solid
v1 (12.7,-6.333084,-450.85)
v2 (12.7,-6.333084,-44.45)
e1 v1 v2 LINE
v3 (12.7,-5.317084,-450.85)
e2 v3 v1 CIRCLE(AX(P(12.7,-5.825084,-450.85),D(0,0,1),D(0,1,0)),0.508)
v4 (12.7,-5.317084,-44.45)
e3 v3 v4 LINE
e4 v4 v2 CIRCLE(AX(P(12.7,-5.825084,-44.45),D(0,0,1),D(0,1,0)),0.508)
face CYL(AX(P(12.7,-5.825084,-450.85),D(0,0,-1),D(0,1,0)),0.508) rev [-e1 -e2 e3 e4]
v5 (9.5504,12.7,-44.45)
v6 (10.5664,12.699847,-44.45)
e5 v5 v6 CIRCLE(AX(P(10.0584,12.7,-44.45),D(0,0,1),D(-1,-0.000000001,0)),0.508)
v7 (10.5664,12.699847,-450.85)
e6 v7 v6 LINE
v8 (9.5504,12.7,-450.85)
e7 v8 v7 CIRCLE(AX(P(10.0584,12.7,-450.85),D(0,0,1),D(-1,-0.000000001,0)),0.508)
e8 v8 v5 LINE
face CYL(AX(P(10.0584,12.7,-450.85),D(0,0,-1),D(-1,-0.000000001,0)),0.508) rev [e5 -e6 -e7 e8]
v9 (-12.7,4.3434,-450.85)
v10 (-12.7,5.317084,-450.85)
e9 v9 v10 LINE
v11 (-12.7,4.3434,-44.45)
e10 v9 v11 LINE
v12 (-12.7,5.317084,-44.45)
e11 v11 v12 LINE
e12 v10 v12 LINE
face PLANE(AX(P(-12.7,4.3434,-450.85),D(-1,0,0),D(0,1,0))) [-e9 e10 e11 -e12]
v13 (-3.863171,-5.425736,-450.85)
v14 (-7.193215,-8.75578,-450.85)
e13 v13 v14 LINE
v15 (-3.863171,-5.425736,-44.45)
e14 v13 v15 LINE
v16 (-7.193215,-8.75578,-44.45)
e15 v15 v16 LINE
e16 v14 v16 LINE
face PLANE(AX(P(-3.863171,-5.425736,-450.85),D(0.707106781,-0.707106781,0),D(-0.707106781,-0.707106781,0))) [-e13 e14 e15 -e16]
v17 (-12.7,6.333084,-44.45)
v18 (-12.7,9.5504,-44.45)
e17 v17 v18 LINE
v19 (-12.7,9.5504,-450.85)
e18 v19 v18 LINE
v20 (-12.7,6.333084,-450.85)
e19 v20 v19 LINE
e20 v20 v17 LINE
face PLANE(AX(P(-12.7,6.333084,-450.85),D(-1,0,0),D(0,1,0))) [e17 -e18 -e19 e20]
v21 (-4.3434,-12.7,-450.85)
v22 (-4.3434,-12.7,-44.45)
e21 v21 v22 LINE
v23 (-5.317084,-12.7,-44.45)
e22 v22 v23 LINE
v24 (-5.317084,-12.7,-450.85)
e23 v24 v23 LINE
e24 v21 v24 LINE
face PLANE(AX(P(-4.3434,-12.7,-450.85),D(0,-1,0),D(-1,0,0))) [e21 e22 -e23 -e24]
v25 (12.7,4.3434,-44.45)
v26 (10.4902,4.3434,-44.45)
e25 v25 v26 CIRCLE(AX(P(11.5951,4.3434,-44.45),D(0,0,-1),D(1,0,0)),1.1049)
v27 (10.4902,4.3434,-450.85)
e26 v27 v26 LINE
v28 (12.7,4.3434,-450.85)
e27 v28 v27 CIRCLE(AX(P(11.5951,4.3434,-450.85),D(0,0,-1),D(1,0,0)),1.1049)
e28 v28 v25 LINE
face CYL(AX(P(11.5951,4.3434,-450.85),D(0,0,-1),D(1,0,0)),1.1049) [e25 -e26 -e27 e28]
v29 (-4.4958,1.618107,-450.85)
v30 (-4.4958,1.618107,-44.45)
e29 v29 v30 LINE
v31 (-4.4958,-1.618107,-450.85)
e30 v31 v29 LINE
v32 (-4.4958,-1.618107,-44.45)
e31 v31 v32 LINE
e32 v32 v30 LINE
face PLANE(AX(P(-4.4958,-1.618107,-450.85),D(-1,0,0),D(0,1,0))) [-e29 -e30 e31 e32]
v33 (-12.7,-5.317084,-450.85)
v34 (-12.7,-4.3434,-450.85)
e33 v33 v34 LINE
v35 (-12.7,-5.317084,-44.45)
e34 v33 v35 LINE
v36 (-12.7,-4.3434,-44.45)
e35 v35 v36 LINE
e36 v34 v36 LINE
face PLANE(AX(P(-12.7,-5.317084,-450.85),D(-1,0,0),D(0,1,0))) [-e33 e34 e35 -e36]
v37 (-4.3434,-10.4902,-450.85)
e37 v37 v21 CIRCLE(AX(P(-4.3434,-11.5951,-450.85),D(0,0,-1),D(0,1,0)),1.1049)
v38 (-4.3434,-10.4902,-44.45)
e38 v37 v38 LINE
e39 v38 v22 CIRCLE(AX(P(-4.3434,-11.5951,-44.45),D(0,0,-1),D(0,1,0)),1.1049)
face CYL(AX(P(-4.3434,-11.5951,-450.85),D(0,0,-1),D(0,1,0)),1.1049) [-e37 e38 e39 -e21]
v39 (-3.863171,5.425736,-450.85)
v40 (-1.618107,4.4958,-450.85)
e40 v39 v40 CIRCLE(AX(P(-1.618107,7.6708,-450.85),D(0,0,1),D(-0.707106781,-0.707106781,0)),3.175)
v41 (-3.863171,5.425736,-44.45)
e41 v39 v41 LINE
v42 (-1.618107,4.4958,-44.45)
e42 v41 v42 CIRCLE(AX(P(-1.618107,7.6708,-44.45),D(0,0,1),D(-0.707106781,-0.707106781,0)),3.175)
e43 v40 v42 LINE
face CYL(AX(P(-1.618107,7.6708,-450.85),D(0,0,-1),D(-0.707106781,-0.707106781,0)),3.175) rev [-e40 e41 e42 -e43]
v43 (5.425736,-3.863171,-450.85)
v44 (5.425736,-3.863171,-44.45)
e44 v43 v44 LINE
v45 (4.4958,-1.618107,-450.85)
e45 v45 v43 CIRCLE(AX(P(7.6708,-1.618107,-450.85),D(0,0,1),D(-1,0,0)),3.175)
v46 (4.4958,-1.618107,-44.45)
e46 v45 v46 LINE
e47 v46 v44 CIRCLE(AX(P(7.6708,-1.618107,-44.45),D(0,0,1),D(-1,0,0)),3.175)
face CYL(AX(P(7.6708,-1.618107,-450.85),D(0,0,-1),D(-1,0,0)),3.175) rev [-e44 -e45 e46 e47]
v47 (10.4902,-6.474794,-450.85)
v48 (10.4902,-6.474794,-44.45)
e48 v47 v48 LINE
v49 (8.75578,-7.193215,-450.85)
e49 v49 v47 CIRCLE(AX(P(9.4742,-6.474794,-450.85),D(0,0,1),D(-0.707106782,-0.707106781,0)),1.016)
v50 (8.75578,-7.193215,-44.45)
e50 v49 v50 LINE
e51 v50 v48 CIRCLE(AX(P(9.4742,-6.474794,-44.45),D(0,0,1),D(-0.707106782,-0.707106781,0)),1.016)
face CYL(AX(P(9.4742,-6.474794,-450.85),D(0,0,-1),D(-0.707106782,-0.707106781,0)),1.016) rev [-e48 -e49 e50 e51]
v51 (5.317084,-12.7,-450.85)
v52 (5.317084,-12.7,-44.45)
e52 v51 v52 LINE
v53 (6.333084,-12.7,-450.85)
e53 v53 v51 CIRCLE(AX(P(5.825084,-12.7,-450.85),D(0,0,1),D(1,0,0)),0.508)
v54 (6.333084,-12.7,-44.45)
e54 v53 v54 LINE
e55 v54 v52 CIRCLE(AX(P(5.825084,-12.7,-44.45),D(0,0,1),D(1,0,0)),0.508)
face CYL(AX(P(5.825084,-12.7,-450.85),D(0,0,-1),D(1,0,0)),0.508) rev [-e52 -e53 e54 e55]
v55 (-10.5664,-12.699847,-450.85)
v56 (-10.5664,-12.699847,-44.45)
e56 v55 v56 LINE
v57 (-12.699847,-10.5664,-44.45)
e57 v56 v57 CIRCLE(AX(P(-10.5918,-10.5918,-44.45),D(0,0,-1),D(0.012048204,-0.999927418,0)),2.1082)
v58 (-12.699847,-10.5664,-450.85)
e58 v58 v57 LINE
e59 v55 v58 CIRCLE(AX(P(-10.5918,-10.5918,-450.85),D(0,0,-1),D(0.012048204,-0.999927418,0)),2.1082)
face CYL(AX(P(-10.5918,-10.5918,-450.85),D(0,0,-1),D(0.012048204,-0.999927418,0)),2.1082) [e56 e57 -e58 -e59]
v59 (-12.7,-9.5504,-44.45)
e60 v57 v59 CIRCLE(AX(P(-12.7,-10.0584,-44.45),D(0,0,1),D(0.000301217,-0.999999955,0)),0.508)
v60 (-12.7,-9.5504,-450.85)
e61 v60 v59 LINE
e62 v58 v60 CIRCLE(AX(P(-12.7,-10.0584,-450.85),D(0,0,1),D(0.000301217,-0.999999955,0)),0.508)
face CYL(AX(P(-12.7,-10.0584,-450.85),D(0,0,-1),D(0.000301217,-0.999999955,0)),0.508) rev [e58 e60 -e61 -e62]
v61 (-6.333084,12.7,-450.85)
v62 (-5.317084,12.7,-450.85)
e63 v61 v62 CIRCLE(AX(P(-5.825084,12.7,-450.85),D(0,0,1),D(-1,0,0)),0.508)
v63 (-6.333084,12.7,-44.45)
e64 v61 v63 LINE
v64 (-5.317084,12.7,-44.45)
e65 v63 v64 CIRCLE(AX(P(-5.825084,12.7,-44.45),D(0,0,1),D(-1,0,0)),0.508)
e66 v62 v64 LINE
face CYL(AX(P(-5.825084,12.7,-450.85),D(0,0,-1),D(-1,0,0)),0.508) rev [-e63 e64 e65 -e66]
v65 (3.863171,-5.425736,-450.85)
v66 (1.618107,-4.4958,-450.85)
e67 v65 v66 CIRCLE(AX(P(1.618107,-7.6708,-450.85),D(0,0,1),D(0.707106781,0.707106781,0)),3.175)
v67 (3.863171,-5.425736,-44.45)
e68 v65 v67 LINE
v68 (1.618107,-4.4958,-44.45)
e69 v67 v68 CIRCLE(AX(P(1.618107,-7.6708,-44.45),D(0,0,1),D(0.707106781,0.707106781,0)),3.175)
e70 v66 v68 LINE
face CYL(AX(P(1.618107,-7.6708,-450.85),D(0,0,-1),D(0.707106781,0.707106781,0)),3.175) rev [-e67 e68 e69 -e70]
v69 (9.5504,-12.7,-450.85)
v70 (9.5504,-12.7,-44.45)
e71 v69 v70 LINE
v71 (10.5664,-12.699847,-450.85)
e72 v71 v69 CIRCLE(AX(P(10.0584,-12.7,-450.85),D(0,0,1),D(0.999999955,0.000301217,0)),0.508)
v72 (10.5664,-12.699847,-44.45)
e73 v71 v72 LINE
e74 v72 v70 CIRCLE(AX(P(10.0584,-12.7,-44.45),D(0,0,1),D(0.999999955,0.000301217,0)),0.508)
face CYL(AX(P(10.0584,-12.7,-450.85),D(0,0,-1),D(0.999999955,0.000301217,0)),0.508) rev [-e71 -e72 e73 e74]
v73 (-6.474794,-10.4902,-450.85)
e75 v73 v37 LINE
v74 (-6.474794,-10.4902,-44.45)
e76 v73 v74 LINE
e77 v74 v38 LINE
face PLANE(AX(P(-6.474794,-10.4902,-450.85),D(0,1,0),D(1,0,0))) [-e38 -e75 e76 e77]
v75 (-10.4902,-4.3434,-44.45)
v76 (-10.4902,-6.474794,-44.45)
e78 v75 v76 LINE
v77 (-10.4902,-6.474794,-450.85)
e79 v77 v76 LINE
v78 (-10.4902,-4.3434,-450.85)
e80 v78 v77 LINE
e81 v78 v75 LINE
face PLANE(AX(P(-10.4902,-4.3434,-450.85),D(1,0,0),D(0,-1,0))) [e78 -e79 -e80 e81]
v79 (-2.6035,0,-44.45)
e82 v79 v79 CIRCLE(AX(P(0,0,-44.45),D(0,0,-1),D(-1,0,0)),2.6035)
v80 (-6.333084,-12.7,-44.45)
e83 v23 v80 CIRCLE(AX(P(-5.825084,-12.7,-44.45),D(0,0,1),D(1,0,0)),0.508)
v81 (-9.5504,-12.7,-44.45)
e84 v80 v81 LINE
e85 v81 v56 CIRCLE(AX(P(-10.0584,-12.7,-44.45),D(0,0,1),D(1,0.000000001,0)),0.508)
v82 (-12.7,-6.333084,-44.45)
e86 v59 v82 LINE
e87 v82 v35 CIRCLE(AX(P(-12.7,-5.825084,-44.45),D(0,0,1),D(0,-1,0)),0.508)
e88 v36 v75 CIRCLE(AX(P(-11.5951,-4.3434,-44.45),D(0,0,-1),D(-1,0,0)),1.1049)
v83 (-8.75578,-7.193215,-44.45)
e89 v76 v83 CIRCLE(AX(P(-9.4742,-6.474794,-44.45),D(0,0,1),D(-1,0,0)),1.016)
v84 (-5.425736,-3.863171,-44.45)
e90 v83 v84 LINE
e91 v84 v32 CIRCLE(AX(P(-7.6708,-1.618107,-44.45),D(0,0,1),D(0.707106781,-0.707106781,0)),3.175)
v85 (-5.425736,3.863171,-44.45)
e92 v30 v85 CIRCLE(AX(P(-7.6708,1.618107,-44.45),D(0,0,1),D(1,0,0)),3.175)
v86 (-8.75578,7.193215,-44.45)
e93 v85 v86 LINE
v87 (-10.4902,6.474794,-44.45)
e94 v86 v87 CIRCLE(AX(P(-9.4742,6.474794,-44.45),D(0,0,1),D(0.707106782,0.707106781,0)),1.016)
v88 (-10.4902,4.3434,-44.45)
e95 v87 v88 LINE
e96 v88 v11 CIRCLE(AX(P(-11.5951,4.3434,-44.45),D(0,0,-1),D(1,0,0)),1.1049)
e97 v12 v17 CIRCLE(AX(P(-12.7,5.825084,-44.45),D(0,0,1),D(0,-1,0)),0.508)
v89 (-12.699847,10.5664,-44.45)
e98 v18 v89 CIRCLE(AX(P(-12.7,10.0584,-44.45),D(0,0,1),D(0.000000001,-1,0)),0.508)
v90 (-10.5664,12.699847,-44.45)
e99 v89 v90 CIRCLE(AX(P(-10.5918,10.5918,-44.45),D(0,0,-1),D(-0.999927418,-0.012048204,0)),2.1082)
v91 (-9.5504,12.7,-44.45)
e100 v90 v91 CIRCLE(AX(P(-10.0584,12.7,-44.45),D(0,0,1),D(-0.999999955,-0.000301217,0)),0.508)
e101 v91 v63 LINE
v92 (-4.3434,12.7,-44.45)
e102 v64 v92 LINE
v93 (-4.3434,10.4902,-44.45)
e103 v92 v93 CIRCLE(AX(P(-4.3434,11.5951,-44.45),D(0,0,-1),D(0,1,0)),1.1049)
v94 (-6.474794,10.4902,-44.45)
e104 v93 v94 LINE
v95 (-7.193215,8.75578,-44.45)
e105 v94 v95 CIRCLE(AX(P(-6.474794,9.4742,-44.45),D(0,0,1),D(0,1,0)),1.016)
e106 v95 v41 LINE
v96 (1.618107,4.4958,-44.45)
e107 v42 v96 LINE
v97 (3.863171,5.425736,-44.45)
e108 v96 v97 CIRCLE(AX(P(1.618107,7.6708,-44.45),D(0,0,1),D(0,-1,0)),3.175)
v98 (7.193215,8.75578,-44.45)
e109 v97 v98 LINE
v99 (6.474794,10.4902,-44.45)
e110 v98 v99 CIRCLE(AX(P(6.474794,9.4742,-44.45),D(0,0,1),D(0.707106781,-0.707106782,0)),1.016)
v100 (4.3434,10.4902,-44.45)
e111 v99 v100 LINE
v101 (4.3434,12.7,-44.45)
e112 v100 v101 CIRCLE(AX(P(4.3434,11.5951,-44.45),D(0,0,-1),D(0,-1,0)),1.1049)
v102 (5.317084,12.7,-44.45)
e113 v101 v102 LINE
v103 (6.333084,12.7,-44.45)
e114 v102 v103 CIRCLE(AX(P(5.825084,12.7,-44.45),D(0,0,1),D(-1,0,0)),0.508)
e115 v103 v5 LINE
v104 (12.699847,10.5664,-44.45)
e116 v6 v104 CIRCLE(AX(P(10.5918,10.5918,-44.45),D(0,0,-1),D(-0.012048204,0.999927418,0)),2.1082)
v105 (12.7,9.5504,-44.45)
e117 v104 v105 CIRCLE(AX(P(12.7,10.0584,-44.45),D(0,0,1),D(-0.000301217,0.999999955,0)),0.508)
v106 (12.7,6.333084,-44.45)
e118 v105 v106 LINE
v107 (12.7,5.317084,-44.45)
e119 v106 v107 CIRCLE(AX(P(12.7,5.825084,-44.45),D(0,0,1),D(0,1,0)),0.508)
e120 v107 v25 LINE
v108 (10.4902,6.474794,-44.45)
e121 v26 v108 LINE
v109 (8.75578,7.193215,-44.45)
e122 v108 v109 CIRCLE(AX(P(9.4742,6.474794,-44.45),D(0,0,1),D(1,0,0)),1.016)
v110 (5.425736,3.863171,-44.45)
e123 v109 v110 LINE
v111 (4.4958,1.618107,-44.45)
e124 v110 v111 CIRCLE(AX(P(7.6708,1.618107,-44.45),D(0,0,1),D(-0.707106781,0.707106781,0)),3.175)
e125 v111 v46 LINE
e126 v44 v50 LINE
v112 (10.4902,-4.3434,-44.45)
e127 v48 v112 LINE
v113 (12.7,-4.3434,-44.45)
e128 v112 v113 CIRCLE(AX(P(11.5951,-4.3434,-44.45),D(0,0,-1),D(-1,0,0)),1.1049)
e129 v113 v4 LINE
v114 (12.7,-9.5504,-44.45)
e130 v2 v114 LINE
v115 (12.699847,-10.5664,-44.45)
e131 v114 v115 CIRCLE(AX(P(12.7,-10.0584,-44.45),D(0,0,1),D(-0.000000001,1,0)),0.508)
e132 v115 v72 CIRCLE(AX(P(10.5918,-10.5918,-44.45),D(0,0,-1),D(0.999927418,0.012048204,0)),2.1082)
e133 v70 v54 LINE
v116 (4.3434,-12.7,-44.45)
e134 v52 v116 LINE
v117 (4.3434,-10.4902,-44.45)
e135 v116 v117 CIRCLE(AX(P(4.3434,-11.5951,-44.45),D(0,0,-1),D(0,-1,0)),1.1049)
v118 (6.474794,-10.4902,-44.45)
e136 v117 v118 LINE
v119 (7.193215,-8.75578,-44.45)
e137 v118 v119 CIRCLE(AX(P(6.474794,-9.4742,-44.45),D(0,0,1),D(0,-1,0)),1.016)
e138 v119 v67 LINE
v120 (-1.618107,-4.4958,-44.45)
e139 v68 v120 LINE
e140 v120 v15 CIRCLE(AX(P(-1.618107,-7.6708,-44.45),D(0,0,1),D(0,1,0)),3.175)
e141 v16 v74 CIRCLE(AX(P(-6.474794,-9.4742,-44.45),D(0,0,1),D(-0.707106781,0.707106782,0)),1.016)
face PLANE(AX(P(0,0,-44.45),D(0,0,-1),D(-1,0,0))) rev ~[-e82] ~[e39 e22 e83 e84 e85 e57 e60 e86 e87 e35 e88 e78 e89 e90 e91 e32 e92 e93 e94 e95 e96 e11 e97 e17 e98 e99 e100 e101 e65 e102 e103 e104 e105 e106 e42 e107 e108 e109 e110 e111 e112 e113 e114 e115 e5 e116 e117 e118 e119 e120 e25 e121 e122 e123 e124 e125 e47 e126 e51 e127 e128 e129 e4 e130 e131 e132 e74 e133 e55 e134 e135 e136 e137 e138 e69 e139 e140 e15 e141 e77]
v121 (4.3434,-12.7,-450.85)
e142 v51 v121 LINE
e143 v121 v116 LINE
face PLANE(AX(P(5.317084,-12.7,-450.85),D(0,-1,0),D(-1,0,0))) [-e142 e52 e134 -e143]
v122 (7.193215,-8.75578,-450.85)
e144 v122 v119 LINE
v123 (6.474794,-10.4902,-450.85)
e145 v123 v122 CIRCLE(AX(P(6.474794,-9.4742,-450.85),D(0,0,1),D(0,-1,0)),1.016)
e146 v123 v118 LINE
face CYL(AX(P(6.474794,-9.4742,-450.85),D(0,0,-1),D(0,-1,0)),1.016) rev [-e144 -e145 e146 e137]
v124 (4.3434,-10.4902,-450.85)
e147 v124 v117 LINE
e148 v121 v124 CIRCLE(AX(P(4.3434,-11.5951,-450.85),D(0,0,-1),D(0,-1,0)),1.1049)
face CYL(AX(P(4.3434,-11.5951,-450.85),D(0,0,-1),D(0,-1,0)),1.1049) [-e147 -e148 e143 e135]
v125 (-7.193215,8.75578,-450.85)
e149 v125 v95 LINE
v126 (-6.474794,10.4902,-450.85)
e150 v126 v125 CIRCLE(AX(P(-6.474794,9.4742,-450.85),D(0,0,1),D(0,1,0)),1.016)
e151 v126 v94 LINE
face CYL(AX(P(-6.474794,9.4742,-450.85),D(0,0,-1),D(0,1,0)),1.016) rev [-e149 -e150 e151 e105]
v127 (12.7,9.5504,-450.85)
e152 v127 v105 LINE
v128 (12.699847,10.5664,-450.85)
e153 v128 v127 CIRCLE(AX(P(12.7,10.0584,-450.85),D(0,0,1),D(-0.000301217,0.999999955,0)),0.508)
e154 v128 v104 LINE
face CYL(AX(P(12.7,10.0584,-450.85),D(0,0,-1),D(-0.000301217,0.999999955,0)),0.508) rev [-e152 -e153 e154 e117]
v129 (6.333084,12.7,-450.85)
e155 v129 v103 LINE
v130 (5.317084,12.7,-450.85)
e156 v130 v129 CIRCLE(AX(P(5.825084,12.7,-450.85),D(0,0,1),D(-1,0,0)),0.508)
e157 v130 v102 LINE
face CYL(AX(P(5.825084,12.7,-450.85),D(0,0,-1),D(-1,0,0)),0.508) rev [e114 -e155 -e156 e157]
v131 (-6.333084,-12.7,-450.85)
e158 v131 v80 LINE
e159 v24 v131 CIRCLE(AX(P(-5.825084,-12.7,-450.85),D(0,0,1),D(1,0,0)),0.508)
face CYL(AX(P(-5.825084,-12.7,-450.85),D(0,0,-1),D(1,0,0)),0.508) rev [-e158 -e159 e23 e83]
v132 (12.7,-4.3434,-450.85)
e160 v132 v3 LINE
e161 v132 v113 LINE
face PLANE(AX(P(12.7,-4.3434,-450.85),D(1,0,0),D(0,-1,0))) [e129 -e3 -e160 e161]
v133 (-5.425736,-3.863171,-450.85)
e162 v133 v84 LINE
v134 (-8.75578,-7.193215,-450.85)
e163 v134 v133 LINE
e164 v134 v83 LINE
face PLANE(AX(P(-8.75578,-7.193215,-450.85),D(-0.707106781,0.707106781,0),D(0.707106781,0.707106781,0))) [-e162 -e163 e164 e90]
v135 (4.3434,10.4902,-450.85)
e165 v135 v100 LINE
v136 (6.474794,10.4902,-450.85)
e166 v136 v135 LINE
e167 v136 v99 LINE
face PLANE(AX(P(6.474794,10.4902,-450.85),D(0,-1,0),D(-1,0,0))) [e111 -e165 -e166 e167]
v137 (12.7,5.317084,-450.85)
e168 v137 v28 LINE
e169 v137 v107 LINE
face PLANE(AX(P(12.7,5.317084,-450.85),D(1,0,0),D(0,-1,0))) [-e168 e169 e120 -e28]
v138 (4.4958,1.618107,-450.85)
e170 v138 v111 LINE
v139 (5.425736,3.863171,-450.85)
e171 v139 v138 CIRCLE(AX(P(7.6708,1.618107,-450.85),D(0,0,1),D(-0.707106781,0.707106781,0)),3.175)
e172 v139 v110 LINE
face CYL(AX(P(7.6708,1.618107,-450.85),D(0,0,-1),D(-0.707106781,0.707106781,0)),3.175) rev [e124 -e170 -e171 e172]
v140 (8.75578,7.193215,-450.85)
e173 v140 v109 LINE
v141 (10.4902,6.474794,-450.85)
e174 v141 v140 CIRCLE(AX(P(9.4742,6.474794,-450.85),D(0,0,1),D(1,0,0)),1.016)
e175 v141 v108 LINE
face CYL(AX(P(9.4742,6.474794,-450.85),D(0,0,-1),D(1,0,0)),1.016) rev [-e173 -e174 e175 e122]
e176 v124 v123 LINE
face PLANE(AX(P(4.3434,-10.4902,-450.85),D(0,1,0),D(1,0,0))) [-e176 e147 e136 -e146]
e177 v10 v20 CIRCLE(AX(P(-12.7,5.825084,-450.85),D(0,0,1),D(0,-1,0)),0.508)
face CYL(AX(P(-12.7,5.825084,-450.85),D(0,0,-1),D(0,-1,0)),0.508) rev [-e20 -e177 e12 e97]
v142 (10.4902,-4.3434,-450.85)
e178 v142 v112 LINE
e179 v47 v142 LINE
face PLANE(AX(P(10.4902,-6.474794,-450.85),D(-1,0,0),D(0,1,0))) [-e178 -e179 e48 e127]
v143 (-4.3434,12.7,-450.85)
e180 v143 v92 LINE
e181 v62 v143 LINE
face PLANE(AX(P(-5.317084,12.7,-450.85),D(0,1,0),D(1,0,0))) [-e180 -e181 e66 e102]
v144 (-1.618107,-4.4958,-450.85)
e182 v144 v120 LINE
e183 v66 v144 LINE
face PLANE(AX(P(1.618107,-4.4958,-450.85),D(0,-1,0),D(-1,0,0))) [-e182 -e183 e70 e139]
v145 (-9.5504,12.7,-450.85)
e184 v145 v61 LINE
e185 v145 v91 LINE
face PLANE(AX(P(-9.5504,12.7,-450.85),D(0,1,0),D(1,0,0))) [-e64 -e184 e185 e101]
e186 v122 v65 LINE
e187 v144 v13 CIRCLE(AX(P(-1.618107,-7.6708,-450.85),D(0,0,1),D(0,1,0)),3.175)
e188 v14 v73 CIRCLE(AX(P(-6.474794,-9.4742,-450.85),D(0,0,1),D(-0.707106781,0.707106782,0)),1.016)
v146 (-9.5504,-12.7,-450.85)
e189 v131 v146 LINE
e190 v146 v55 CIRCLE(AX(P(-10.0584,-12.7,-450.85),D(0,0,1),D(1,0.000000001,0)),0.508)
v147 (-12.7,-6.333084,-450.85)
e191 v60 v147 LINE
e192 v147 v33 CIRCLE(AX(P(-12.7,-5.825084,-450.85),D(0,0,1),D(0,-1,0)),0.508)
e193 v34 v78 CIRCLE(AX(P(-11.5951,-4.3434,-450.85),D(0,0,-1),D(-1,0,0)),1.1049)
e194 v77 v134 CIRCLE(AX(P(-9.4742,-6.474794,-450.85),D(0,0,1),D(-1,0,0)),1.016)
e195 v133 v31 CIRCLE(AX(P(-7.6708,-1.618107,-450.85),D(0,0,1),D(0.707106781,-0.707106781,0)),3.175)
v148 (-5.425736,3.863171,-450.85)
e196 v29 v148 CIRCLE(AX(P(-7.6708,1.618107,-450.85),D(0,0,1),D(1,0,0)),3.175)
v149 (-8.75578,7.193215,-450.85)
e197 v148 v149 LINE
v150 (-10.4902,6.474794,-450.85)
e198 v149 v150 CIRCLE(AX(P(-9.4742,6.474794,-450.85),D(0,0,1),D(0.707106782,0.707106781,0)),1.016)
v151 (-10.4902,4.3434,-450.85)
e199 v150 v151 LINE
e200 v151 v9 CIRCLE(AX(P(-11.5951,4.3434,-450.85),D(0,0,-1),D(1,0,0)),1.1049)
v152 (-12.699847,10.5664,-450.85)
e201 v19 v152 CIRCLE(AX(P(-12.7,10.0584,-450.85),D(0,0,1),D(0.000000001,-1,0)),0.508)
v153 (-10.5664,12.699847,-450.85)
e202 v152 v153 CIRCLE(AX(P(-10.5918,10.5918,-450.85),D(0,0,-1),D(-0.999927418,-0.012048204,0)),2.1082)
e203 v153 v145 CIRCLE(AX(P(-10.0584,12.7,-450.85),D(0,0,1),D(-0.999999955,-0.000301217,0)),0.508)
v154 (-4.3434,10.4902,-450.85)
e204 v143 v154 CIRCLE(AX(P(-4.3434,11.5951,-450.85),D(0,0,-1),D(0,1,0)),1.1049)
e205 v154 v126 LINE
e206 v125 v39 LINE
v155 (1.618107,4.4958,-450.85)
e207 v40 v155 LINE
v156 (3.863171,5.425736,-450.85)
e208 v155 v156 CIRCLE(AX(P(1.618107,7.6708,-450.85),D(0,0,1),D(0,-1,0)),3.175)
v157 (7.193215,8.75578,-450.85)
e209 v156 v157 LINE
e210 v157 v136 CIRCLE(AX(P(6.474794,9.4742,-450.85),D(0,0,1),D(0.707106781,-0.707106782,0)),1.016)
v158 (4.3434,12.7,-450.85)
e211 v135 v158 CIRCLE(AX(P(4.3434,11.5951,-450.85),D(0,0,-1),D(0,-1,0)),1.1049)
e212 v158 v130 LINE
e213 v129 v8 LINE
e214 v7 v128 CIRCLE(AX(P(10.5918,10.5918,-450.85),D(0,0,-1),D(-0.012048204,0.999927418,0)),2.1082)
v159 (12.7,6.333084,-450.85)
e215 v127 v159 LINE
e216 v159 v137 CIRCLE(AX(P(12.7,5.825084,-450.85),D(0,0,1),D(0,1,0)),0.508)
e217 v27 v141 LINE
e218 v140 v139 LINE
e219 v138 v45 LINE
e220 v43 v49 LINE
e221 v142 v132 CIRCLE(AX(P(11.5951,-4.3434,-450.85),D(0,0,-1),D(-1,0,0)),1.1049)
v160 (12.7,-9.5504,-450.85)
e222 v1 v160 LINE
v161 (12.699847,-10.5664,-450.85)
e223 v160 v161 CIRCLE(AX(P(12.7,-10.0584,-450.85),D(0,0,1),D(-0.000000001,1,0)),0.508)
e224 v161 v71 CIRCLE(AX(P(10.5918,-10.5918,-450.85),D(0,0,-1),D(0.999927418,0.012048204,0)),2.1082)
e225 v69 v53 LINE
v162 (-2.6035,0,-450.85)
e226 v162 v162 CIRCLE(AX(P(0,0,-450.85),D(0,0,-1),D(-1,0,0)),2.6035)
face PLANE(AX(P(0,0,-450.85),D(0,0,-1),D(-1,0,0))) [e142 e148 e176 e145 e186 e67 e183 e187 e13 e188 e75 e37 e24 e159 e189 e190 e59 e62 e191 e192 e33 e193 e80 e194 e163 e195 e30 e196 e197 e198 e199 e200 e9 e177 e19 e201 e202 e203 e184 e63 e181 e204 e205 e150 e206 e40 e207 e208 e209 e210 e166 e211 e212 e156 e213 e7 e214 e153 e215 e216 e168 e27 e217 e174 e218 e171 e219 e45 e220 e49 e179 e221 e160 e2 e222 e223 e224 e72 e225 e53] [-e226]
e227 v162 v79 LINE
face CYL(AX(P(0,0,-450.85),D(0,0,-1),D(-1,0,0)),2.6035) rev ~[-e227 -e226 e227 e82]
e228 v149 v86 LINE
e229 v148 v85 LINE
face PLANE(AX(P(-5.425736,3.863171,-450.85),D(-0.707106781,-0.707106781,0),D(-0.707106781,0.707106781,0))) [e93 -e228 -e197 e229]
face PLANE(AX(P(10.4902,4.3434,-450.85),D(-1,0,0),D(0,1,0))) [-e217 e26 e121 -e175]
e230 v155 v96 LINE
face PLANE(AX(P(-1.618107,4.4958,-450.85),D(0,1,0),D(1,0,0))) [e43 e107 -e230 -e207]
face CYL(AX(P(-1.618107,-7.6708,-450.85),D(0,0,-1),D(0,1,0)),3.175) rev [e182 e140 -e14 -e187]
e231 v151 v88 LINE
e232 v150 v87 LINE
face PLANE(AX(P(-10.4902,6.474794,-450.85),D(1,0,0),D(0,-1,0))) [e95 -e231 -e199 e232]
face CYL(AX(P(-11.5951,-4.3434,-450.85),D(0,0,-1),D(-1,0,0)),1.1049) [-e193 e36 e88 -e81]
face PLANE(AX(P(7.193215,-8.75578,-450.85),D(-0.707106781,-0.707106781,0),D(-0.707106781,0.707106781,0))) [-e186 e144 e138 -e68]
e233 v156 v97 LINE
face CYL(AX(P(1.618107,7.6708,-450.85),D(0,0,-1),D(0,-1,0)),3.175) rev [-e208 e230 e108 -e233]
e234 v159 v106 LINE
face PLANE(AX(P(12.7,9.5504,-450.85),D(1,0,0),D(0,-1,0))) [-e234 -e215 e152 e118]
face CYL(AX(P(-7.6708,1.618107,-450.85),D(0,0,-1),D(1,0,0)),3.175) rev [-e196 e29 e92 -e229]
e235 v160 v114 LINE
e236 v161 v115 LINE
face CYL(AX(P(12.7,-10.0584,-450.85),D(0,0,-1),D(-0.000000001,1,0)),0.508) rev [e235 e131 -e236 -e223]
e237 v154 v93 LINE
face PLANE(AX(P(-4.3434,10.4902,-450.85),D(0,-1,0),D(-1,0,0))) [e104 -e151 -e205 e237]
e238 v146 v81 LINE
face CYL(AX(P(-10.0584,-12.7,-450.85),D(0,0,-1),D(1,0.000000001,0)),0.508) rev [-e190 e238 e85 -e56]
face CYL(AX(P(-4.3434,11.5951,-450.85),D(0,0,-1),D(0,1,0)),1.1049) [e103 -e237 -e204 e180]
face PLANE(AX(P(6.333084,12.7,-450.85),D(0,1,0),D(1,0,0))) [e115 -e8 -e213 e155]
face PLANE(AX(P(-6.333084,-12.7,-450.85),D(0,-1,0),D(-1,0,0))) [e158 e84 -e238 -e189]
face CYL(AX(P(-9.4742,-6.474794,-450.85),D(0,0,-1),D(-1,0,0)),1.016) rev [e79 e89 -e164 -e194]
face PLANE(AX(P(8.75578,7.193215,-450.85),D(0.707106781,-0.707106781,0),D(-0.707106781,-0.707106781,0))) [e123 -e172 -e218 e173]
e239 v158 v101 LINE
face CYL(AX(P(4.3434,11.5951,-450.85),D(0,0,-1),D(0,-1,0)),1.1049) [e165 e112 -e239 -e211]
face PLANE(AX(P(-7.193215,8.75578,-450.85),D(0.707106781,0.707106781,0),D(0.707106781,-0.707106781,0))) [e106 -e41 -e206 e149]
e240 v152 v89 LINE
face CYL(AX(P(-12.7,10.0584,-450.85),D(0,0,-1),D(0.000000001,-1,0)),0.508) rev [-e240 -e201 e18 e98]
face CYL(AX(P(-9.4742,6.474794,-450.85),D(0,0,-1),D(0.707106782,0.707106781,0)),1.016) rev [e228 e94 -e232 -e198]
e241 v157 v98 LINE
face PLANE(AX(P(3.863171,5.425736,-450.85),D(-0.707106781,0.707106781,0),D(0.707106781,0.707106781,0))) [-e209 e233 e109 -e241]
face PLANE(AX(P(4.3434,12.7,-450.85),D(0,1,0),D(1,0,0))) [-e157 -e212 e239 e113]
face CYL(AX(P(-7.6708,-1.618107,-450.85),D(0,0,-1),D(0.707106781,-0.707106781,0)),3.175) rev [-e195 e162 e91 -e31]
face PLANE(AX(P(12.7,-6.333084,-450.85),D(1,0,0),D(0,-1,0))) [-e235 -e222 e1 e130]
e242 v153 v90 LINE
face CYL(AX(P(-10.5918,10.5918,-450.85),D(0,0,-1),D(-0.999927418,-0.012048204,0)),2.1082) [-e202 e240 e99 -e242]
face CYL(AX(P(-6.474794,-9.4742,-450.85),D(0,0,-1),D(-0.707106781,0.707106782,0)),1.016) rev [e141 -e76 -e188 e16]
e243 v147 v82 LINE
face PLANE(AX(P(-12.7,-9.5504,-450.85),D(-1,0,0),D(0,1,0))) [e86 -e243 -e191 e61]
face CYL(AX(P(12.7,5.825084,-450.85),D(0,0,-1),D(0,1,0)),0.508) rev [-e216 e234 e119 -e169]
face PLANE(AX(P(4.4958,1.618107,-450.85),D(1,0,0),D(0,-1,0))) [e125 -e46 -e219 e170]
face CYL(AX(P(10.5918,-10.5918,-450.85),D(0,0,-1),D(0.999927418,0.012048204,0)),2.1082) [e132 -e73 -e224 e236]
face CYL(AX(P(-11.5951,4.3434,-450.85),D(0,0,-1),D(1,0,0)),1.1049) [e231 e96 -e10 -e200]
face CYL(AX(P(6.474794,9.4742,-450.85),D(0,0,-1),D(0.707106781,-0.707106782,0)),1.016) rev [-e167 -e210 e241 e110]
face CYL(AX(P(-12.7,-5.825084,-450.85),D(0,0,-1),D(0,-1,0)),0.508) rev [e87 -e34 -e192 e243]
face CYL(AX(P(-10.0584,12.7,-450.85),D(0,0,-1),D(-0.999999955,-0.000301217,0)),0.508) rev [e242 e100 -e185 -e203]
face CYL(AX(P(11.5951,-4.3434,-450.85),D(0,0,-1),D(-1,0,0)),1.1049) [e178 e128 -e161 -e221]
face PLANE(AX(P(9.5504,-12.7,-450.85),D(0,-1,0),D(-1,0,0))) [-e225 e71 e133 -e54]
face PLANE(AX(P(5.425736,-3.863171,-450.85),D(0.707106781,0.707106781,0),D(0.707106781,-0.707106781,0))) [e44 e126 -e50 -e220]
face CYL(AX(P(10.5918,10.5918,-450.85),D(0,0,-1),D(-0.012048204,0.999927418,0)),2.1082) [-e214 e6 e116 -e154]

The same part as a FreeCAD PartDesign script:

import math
import FreeCAD as App
import Part
import Sketcher
from FreeCAD import Vector
Q = App.Units.Quantity

doc = App.newDocument("Part")
body = doc.addObject("PartDesign::Body", "Body")

sketch1 = body.newObject("Sketcher::SketchObject", "Sketch")
sketch1.AttachmentSupport = (doc.getObject("XY_Plane"), [""])
sketch1.MapMode = "FlatFace"
sketch1.AttachmentOffset = App.Placement(Vector(0, 0, -17.75 * 25.4), App.Rotation())
sketch1.addGeometry(Part.LineSegment(Vector(-12.7, -9.6, 0), Vector(-12.7, -6.3, 0)), False)
sketch1.addGeometry(Part.ArcOfCircle(Part.Circle(Vector(-12.7, -5.8, 0), Vector(0, 0, 1), 0.5), math.radians(-90), math.radians(90)), False)
sketch1.addGeometry(Part.LineSegment(Vector(-12.7, -5.3, 0), Vector(-12.7, -4.3, 0)), False)
sketch1.addGeometry(Part.ArcOfCircle(Part.Circle(Vector(-11.6, -4.3, 0), Vector(0, 0, 1), 1.1), math.radians(0), math.radians(180)), False)
sketch1.addGeometry(Part.LineSegment(Vector(-10.5, -4.3, 0), Vector(-10.5, -6.5, 0)), False)
sketch1.addGeometry(Part.ArcOfCircle(Part.Circle(Vector(-9.5, -6.5, 0), Vector(0, 0, 1), 1), math.radians(180), math.radians(315)), False)
sketch1.addGeometry(Part.LineSegment(Vector(-8.8, -7.2, 0), Vector(-5.4, -3.9, 0)), False)
sketch1.addGeometry(Part.ArcOfCircle(Part.Circle(Vector(-7.7, -1.6, 0), Vector(0, 0, 1), 3.2), math.radians(-45), math.radians(0)), False)
sketch1.addGeometry(Part.LineSegment(Vector(-4.5, -1.6, 0), Vector(-4.5, 1.6, 0)), False)
sketch1.addGeometry(Part.ArcOfCircle(Part.Circle(Vector(-7.7, 1.6, 0), Vector(0, 0, 1), 3.2), math.radians(0), math.radians(45)), False)
sketch1.addGeometry(Part.LineSegment(Vector(-5.4, 3.9, 0), Vector(-8.8, 7.2, 0)), False)
sketch1.addGeometry(Part.ArcOfCircle(Part.Circle(Vector(-9.5, 6.5, 0), Vector(0, 0, 1), 1), math.radians(45), math.radians(180)), False)
sketch1.addGeometry(Part.LineSegment(Vector(-10.5, 6.5, 0), Vector(-10.5, 4.3, 0)), False)
sketch1.addGeometry(Part.ArcOfCircle(Part.Circle(Vector(-11.6, 4.3, 0), Vector(0, 0, 1), 1.1), math.radians(180), math.radians(360)), False)
sketch1.addGeometry(Part.LineSegment(Vector(-12.7, 4.3, 0), Vector(-12.7, 5.3, 0)), False)
sketch1.addGeometry(Part.ArcOfCircle(Part.Circle(Vector(-12.7, 5.8, 0), Vector(0, 0, 1), 0.5), math.radians(-90), math.radians(90)), False)
sketch1.addGeometry(Part.LineSegment(Vector(-12.7, 6.3, 0), Vector(-12.7, 9.6, 0)), False)
sketch1.addGeometry(Part.ArcOfCircle(Part.Circle(Vector(-12.7, 10.1, 0), Vector(0, 0, 1), 0.5), math.radians(-90), math.radians(90)), False)
sketch1.addGeometry(Part.ArcOfCircle(Part.Circle(Vector(-10.6, 10.6, 0), Vector(0, 0, 1), 2.1), math.radians(89), math.radians(181)), False)
sketch1.addGeometry(Part.ArcOfCircle(Part.Circle(Vector(-10.1, 12.7, 0), Vector(0, 0, 1), 0.5), math.radians(-180), math.radians(0)), False)
sketch1.addGeometry(Part.LineSegment(Vector(-9.6, 12.7, 0), Vector(-6.3, 12.7, 0)), False)
sketch1.addGeometry(Part.ArcOfCircle(Part.Circle(Vector(-5.8, 12.7, 0), Vector(0, 0, 1), 0.5), math.radians(180), math.radians(360)), False)
sketch1.addGeometry(Part.LineSegment(Vector(-5.3, 12.7, 0), Vector(-4.3, 12.7, 0)), False)
sketch1.addGeometry(Part.ArcOfCircle(Part.Circle(Vector(-4.3, 11.6, 0), Vector(0, 0, 1), 1.1), math.radians(-90), math.radians(90)), False)
sketch1.addGeometry(Part.LineSegment(Vector(-4.3, 10.5, 0), Vector(-6.5, 10.5, 0)), False)
sketch1.addGeometry(Part.ArcOfCircle(Part.Circle(Vector(-6.5, 9.5, 0), Vector(0, 0, 1), 1), math.radians(90), math.radians(225)), False)
sketch1.addGeometry(Part.LineSegment(Vector(-7.2, 8.8, 0), Vector(-3.9, 5.4, 0)), False)
sketch1.addGeometry(Part.ArcOfCircle(Part.Circle(Vector(-1.6, 7.7, 0), Vector(0, 0, 1), 3.2), math.radians(-135), math.radians(-90)), False)
sketch1.addGeometry(Part.LineSegment(Vector(-1.6, 4.5, 0), Vector(1.6, 4.5, 0)), False)
sketch1.addGeometry(Part.ArcOfCircle(Part.Circle(Vector(1.6, 7.7, 0), Vector(0, 0, 1), 3.2), math.radians(-90), math.radians(-45)), False)
sketch1.addGeometry(Part.LineSegment(Vector(3.9, 5.4, 0), Vector(7.2, 8.8, 0)), False)
sketch1.addGeometry(Part.ArcOfCircle(Part.Circle(Vector(6.5, 9.5, 0), Vector(0, 0, 1), 1), math.radians(-45), math.radians(90)), False)
sketch1.addGeometry(Part.LineSegment(Vector(6.5, 10.5, 0), Vector(4.3, 10.5, 0)), False)
sketch1.addGeometry(Part.ArcOfCircle(Part.Circle(Vector(4.3, 11.6, 0), Vector(0, 0, 1), 1.1), math.radians(90), math.radians(270)), False)
sketch1.addGeometry(Part.LineSegment(Vector(4.3, 12.7, 0), Vector(5.3, 12.7, 0)), False)
sketch1.addGeometry(Part.ArcOfCircle(Part.Circle(Vector(5.8, 12.7, 0), Vector(0, 0, 1), 0.5), math.radians(180), math.radians(360)), False)
sketch1.addGeometry(Part.LineSegment(Vector(6.3, 12.7, 0), Vector(9.6, 12.7, 0)), False)
sketch1.addGeometry(Part.ArcOfCircle(Part.Circle(Vector(10.1, 12.7, 0), Vector(0, 0, 1), 0.5), math.radians(180), math.radians(360)), False)
sketch1.addGeometry(Part.ArcOfCircle(Part.Circle(Vector(10.6, 10.6, 0), Vector(0, 0, 1), 2.1), math.radians(-1), math.radians(91)), False)
sketch1.addGeometry(Part.ArcOfCircle(Part.Circle(Vector(12.7, 10.1, 0), Vector(0, 0, 1), 0.5), math.radians(90), math.radians(270)), False)
sketch1.addGeometry(Part.LineSegment(Vector(12.7, 9.6, 0), Vector(12.7, 6.3, 0)), False)
sketch1.addGeometry(Part.ArcOfCircle(Part.Circle(Vector(12.7, 5.8, 0), Vector(0, 0, 1), 0.5), math.radians(90), math.radians(270)), False)
sketch1.addGeometry(Part.LineSegment(Vector(12.7, 5.3, 0), Vector(12.7, 4.3, 0)), False)
sketch1.addGeometry(Part.ArcOfCircle(Part.Circle(Vector(11.6, 4.3, 0), Vector(0, 0, 1), 1.1), math.radians(180), math.radians(360)), False)
sketch1.addGeometry(Part.LineSegment(Vector(10.5, 4.3, 0), Vector(10.5, 6.5, 0)), False)
sketch1.addGeometry(Part.ArcOfCircle(Part.Circle(Vector(9.5, 6.5, 0), Vector(0, 0, 1), 1), math.radians(0), math.radians(135)), False)
sketch1.addGeometry(Part.LineSegment(Vector(8.8, 7.2, 0), Vector(5.4, 3.9, 0)), False)
sketch1.addGeometry(Part.ArcOfCircle(Part.Circle(Vector(7.7, 1.6, 0), Vector(0, 0, 1), 3.2), math.radians(135), math.radians(180)), False)
sketch1.addGeometry(Part.LineSegment(Vector(4.5, 1.6, 0), Vector(4.5, -1.6, 0)), False)
sketch1.addGeometry(Part.ArcOfCircle(Part.Circle(Vector(7.7, -1.6, 0), Vector(0, 0, 1), 3.2), math.radians(180), math.radians(225)), False)
sketch1.addGeometry(Part.LineSegment(Vector(5.4, -3.9, 0), Vector(8.8, -7.2, 0)), False)
sketch1.addGeometry(Part.ArcOfCircle(Part.Circle(Vector(9.5, -6.5, 0), Vector(0, 0, 1), 1), math.radians(-135), math.radians(0)), False)
sketch1.addGeometry(Part.LineSegment(Vector(10.5, -6.5, 0), Vector(10.5, -4.3, 0)), False)
sketch1.addGeometry(Part.ArcOfCircle(Part.Circle(Vector(11.6, -4.3, 0), Vector(0, 0, 1), 1.1), math.radians(0), math.radians(180)), False)
sketch1.addGeometry(Part.LineSegment(Vector(12.7, -4.3, 0), Vector(12.7, -5.3, 0)), False)
sketch1.addGeometry(Part.ArcOfCircle(Part.Circle(Vector(12.7, -5.8, 0), Vector(0, 0, 1), 0.5), math.radians(90), math.radians(270)), False)
sketch1.addGeometry(Part.LineSegment(Vector(12.7, -6.3, 0), Vector(12.7, -9.6, 0)), False)
sketch1.addGeometry(Part.ArcOfCircle(Part.Circle(Vector(12.7, -10.1, 0), Vector(0, 0, 1), 0.5), math.radians(90), math.radians(270)), False)
sketch1.addGeometry(Part.ArcOfCircle(Part.Circle(Vector(10.6, -10.6, 0), Vector(0, 0, 1), 2.1), math.radians(-91), math.radians(1)), False)
sketch1.addGeometry(Part.ArcOfCircle(Part.Circle(Vector(10.1, -12.7, 0), Vector(0, 0, 1), 0.5), math.radians(0), math.radians(180)), False)
sketch1.addGeometry(Part.LineSegment(Vector(9.6, -12.7, 0), Vector(6.3, -12.7, 0)), False)
sketch1.addGeometry(Part.ArcOfCircle(Part.Circle(Vector(5.8, -12.7, 0), Vector(0, 0, 1), 0.5), math.radians(0), math.radians(180)), False)
sketch1.addGeometry(Part.LineSegment(Vector(5.3, -12.7, 0), Vector(4.3, -12.7, 0)), False)
sketch1.addGeometry(Part.ArcOfCircle(Part.Circle(Vector(4.3, -11.6, 0), Vector(0, 0, 1), 1.1), math.radians(90), math.radians(270)), False)
sketch1.addGeometry(Part.LineSegment(Vector(4.3, -10.5, 0), Vector(6.5, -10.5, 0)), False)
sketch1.addGeometry(Part.ArcOfCircle(Part.Circle(Vector(6.5, -9.5, 0), Vector(0, 0, 1), 1), math.radians(-90), math.radians(45)), False)
sketch1.addGeometry(Part.LineSegment(Vector(7.2, -8.8, 0), Vector(3.9, -5.4, 0)), False)
sketch1.addGeometry(Part.ArcOfCircle(Part.Circle(Vector(1.6, -7.7, 0), Vector(0, 0, 1), 3.2), math.radians(45), math.radians(90)), False)
sketch1.addGeometry(Part.LineSegment(Vector(1.6, -4.5, 0), Vector(-1.6, -4.5, 0)), False)
sketch1.addGeometry(Part.ArcOfCircle(Part.Circle(Vector(-1.6, -7.7, 0), Vector(0, 0, 1), 3.2), math.radians(90), math.radians(135)), False)
sketch1.addGeometry(Part.LineSegment(Vector(-3.9, -5.4, 0), Vector(-7.2, -8.8, 0)), False)
sketch1.addGeometry(Part.ArcOfCircle(Part.Circle(Vector(-6.5, -9.5, 0), Vector(0, 0, 1), 1), math.radians(135), math.radians(270)), False)
sketch1.addGeometry(Part.LineSegment(Vector(-6.5, -10.5, 0), Vector(-4.3, -10.5, 0)), False)
sketch1.addGeometry(Part.ArcOfCircle(Part.Circle(Vector(-4.3, -11.6, 0), Vector(0, 0, 1), 1.1), math.radians(-90), math.radians(90)), False)
sketch1.addGeometry(Part.LineSegment(Vector(-4.3, -12.7, 0), Vector(-5.3, -12.7, 0)), False)
sketch1.addGeometry(Part.ArcOfCircle(Part.Circle(Vector(-5.8, -12.7, 0), Vector(0, 0, 1), 0.5), math.radians(0), math.radians(180)), False)
sketch1.addGeometry(Part.LineSegment(Vector(-6.3, -12.7, 0), Vector(-9.6, -12.7, 0)), False)
sketch1.addGeometry(Part.ArcOfCircle(Part.Circle(Vector(-10.1, -12.7, 0), Vector(0, 0, 1), 0.5), math.radians(0), math.radians(180)), False)
sketch1.addGeometry(Part.ArcOfCircle(Part.Circle(Vector(-10.6, -10.6, 0), Vector(0, 0, 1), 2.1), math.radians(179), math.radians(271)), False)
sketch1.addGeometry(Part.ArcOfCircle(Part.Circle(Vector(-12.7, -10.1, 0), Vector(0, 0, 1), 0.5), math.radians(-90), math.radians(90)), False)
sketch1.addGeometry(Part.Circle(Vector(0, 0, 0), Vector(0, 0, 1), 2.6), False)
sketch1.addConstraint(Sketcher.Constraint("Coincident", 0, 2, 1, 1))
sketch1.addConstraint(Sketcher.Constraint("Coincident", 1, 2, 2, 1))
sketch1.addConstraint(Sketcher.Constraint("Tangent", 2, 2, 3, 2))
sketch1.addConstraint(Sketcher.Constraint("Tangent", 3, 1, 4, 1))
sketch1.addConstraint(Sketcher.Constraint("Tangent", 4, 2, 5, 1))
sketch1.addConstraint(Sketcher.Constraint("Tangent", 5, 2, 6, 1))
sketch1.addConstraint(Sketcher.Constraint("Tangent", 6, 2, 7, 1))
sketch1.addConstraint(Sketcher.Constraint("Tangent", 7, 2, 8, 1))
sketch1.addConstraint(Sketcher.Constraint("Tangent", 8, 2, 9, 1))
sketch1.addConstraint(Sketcher.Constraint("Tangent", 9, 2, 10, 1))
sketch1.addConstraint(Sketcher.Constraint("Tangent", 10, 2, 11, 1))
sketch1.addConstraint(Sketcher.Constraint("Tangent", 11, 2, 12, 1))
sketch1.addConstraint(Sketcher.Constraint("Tangent", 12, 2, 13, 2))
sketch1.addConstraint(Sketcher.Constraint("Tangent", 13, 1, 14, 1))
sketch1.addConstraint(Sketcher.Constraint("Coincident", 14, 2, 15, 1))
sketch1.addConstraint(Sketcher.Constraint("Coincident", 15, 2, 16, 1))
sketch1.addConstraint(Sketcher.Constraint("Coincident", 16, 2, 17, 1))
sketch1.addConstraint(Sketcher.Constraint("Coincident", 17, 2, 18, 2))
sketch1.addConstraint(Sketcher.Constraint("Coincident", 18, 1, 19, 1))
sketch1.addConstraint(Sketcher.Constraint("Coincident", 19, 2, 20, 1))
sketch1.addConstraint(Sketcher.Constraint("Coincident", 20, 2, 21, 1))
sketch1.addConstraint(Sketcher.Constraint("Coincident", 21, 2, 22, 1))
sketch1.addConstraint(Sketcher.Constraint("Tangent", 22, 2, 23, 2))
sketch1.addConstraint(Sketcher.Constraint("Tangent", 23, 1, 24, 1))
sketch1.addConstraint(Sketcher.Constraint("Tangent", 24, 2, 25, 1))
sketch1.addConstraint(Sketcher.Constraint("Tangent", 25, 2, 26, 1))
sketch1.addConstraint(Sketcher.Constraint("Tangent", 26, 2, 27, 1))
sketch1.addConstraint(Sketcher.Constraint("Tangent", 27, 2, 28, 1))
sketch1.addConstraint(Sketcher.Constraint("Tangent", 28, 2, 29, 1))
sketch1.addConstraint(Sketcher.Constraint("Tangent", 29, 2, 30, 1))
sketch1.addConstraint(Sketcher.Constraint("Tangent", 30, 2, 31, 1))
sketch1.addConstraint(Sketcher.Constraint("Tangent", 31, 2, 32, 1))
sketch1.addConstraint(Sketcher.Constraint("Tangent", 32, 2, 33, 2))
sketch1.addConstraint(Sketcher.Constraint("Tangent", 33, 1, 34, 1))
sketch1.addConstraint(Sketcher.Constraint("Coincident", 34, 2, 35, 1))
sketch1.addConstraint(Sketcher.Constraint("Coincident", 35, 2, 36, 1))
sketch1.addConstraint(Sketcher.Constraint("Coincident", 36, 2, 37, 1))
sketch1.addConstraint(Sketcher.Constraint("Coincident", 37, 2, 38, 2))
sketch1.addConstraint(Sketcher.Constraint("Coincident", 38, 1, 39, 1))
sketch1.addConstraint(Sketcher.Constraint("Coincident", 39, 2, 40, 1))
sketch1.addConstraint(Sketcher.Constraint("Coincident", 40, 2, 41, 1))
sketch1.addConstraint(Sketcher.Constraint("Coincident", 41, 2, 42, 1))
sketch1.addConstraint(Sketcher.Constraint("Tangent", 42, 2, 43, 2))
sketch1.addConstraint(Sketcher.Constraint("Tangent", 43, 1, 44, 1))
sketch1.addConstraint(Sketcher.Constraint("Tangent", 44, 2, 45, 1))
sketch1.addConstraint(Sketcher.Constraint("Tangent", 45, 2, 46, 1))
sketch1.addConstraint(Sketcher.Constraint("Tangent", 46, 2, 47, 1))
sketch1.addConstraint(Sketcher.Constraint("Tangent", 47, 2, 48, 1))
sketch1.addConstraint(Sketcher.Constraint("Tangent", 48, 2, 49, 1))
sketch1.addConstraint(Sketcher.Constraint("Tangent", 49, 2, 50, 1))
sketch1.addConstraint(Sketcher.Constraint("Tangent", 50, 2, 51, 1))
sketch1.addConstraint(Sketcher.Constraint("Tangent", 51, 2, 52, 1))
sketch1.addConstraint(Sketcher.Constraint("Tangent", 52, 2, 53, 2))
sketch1.addConstraint(Sketcher.Constraint("Tangent", 53, 1, 54, 1))
sketch1.addConstraint(Sketcher.Constraint("Coincident", 54, 2, 55, 1))
sketch1.addConstraint(Sketcher.Constraint("Coincident", 55, 2, 56, 1))
sketch1.addConstraint(Sketcher.Constraint("Coincident", 56, 2, 57, 1))
sketch1.addConstraint(Sketcher.Constraint("Coincident", 57, 2, 58, 2))
sketch1.addConstraint(Sketcher.Constraint("Coincident", 58, 1, 59, 1))
sketch1.addConstraint(Sketcher.Constraint("Coincident", 59, 2, 60, 1))
sketch1.addConstraint(Sketcher.Constraint("Coincident", 60, 2, 61, 1))
sketch1.addConstraint(Sketcher.Constraint("Coincident", 61, 2, 62, 1))
sketch1.addConstraint(Sketcher.Constraint("Tangent", 62, 2, 63, 2))
sketch1.addConstraint(Sketcher.Constraint("Tangent", 63, 1, 64, 1))
sketch1.addConstraint(Sketcher.Constraint("Tangent", 64, 2, 65, 1))
sketch1.addConstraint(Sketcher.Constraint("Tangent", 65, 2, 66, 1))
sketch1.addConstraint(Sketcher.Constraint("Tangent", 66, 2, 67, 1))
sketch1.addConstraint(Sketcher.Constraint("Tangent", 67, 2, 68, 1))
sketch1.addConstraint(Sketcher.Constraint("Tangent", 68, 2, 69, 1))
sketch1.addConstraint(Sketcher.Constraint("Tangent", 69, 2, 70, 1))
sketch1.addConstraint(Sketcher.Constraint("Tangent", 70, 2, 71, 1))
sketch1.addConstraint(Sketcher.Constraint("Tangent", 71, 2, 72, 1))
sketch1.addConstraint(Sketcher.Constraint("Tangent", 72, 2, 73, 2))
sketch1.addConstraint(Sketcher.Constraint("Tangent", 73, 1, 74, 1))
sketch1.addConstraint(Sketcher.Constraint("Coincident", 74, 2, 75, 1))
sketch1.addConstraint(Sketcher.Constraint("Coincident", 75, 2, 76, 1))
sketch1.addConstraint(Sketcher.Constraint("Coincident", 76, 2, 77, 1))
sketch1.addConstraint(Sketcher.Constraint("Coincident", 77, 2, 78, 2))
sketch1.addConstraint(Sketcher.Constraint("Coincident", 78, 1, 79, 1))
sketch1.addConstraint(Sketcher.Constraint("Coincident", 79, 2, 0, 1))
sketch1.addConstraint(Sketcher.Constraint("Vertical", 0))
sketch1.addConstraint(Sketcher.Constraint("Vertical", 2))
sketch1.addConstraint(Sketcher.Constraint("Vertical", 4))
sketch1.addConstraint(Sketcher.Constraint("Vertical", 8))
sketch1.addConstraint(Sketcher.Constraint("Vertical", 12))
sketch1.addConstraint(Sketcher.Constraint("Vertical", 14))
sketch1.addConstraint(Sketcher.Constraint("Vertical", 16))
sketch1.addConstraint(Sketcher.Constraint("Horizontal", 20))
sketch1.addConstraint(Sketcher.Constraint("Horizontal", 22))
sketch1.addConstraint(Sketcher.Constraint("Horizontal", 24))
sketch1.addConstraint(Sketcher.Constraint("Horizontal", 28))
sketch1.addConstraint(Sketcher.Constraint("Horizontal", 32))
sketch1.addConstraint(Sketcher.Constraint("Horizontal", 34))
sketch1.addConstraint(Sketcher.Constraint("Horizontal", 36))
sketch1.addConstraint(Sketcher.Constraint("Vertical", 40))
sketch1.addConstraint(Sketcher.Constraint("Vertical", 42))
sketch1.addConstraint(Sketcher.Constraint("Vertical", 44))
sketch1.addConstraint(Sketcher.Constraint("Vertical", 48))
sketch1.addConstraint(Sketcher.Constraint("Vertical", 52))
sketch1.addConstraint(Sketcher.Constraint("Vertical", 54))
sketch1.addConstraint(Sketcher.Constraint("Vertical", 56))
sketch1.addConstraint(Sketcher.Constraint("Horizontal", 60))
sketch1.addConstraint(Sketcher.Constraint("Horizontal", 62))
sketch1.addConstraint(Sketcher.Constraint("Horizontal", 64))
sketch1.addConstraint(Sketcher.Constraint("Horizontal", 68))
sketch1.addConstraint(Sketcher.Constraint("Horizontal", 72))
sketch1.addConstraint(Sketcher.Constraint("Horizontal", 74))
sketch1.addConstraint(Sketcher.Constraint("Horizontal", 76))
sketch1.addConstraint(Sketcher.Constraint("Coincident", 80, 3, -1, 1))
sketch1.addConstraint(Sketcher.Constraint("Equal", 7, 9))
sketch1.addConstraint(Sketcher.Constraint("Equal", 5, 11))
sketch1.addConstraint(Sketcher.Constraint("Equal", 3, 13))
sketch1.addConstraint(Sketcher.Constraint("Equal", 1, 15))
sketch1.addConstraint(Sketcher.Constraint("Equal", 15, 17))
sketch1.addConstraint(Sketcher.Constraint("Equal", 17, 19))
sketch1.addConstraint(Sketcher.Constraint("Equal", 19, 21))
sketch1.addConstraint(Sketcher.Constraint("Equal", 13, 23))
sketch1.addConstraint(Sketcher.Constraint("Equal", 11, 25))
sketch1.addConstraint(Sketcher.Constraint("Equal", 9, 27))
sketch1.addConstraint(Sketcher.Constraint("Equal", 27, 29))
sketch1.addConstraint(Sketcher.Constraint("Equal", 25, 31))
sketch1.addConstraint(Sketcher.Constraint("Equal", 23, 33))
sketch1.addConstraint(Sketcher.Constraint("Equal", 21, 35))
sketch1.addConstraint(Sketcher.Constraint("Equal", 35, 37))
sketch1.addConstraint(Sketcher.Constraint("Equal", 18, 38))
sketch1.addConstraint(Sketcher.Constraint("Equal", 37, 39))
sketch1.addConstraint(Sketcher.Constraint("Equal", 39, 41))
sketch1.addConstraint(Sketcher.Constraint("Equal", 33, 43))
sketch1.addConstraint(Sketcher.Constraint("Equal", 31, 45))
sketch1.addConstraint(Sketcher.Constraint("Equal", 29, 47))
sketch1.addConstraint(Sketcher.Constraint("Equal", 47, 49))
sketch1.addConstraint(Sketcher.Constraint("Equal", 45, 51))
sketch1.addConstraint(Sketcher.Constraint("Equal", 43, 53))
sketch1.addConstraint(Sketcher.Constraint("Equal", 41, 55))
sketch1.addConstraint(Sketcher.Constraint("Equal", 55, 57))
sketch1.addConstraint(Sketcher.Constraint("Equal", 38, 58))
sketch1.addConstraint(Sketcher.Constraint("Equal", 57, 59))
sketch1.addConstraint(Sketcher.Constraint("Equal", 59, 61))
sketch1.addConstraint(Sketcher.Constraint("Equal", 53, 63))
sketch1.addConstraint(Sketcher.Constraint("Equal", 51, 65))
sketch1.addConstraint(Sketcher.Constraint("Equal", 49, 67))
sketch1.addConstraint(Sketcher.Constraint("Equal", 67, 69))
sketch1.addConstraint(Sketcher.Constraint("Equal", 65, 71))
sketch1.addConstraint(Sketcher.Constraint("Equal", 63, 73))
sketch1.addConstraint(Sketcher.Constraint("Equal", 61, 75))
sketch1.addConstraint(Sketcher.Constraint("Equal", 75, 77))
sketch1.addConstraint(Sketcher.Constraint("Equal", 58, 78))
sketch1.addConstraint(Sketcher.Constraint("Equal", 77, 79))
sketch1.addConstraint(Sketcher.Constraint("Symmetric", 1, 3, 41, 3, -1, 1))
sketch1.addConstraint(Sketcher.Constraint("Symmetric", 3, 3, 43, 3, -1, 1))
sketch1.addConstraint(Sketcher.Constraint("Symmetric", 7, 3, 47, 3, -1, 1))
sketch1.addConstraint(Sketcher.Constraint("Symmetric", 11, 3, 51, 3, -1, 1))
sketch1.addConstraint(Sketcher.Constraint("Symmetric", 15, 3, 55, 3, -1, 1))
sketch1.addConstraint(Sketcher.Constraint("Symmetric", 17, 3, 57, 3, -1, 1))
sketch1.addConstraint(Sketcher.Constraint("Symmetric", 18, 3, 58, 3, -1, 1))
sketch1.addConstraint(Sketcher.Constraint("Symmetric", 19, 3, 59, 3, -1, 1))
sketch1.addConstraint(Sketcher.Constraint("Symmetric", 21, 3, 61, 3, -1, 1))
sketch1.addConstraint(Sketcher.Constraint("Symmetric", 23, 3, 63, 3, -1, 1))
sketch1.addConstraint(Sketcher.Constraint("Symmetric", 27, 3, 67, 3, -1, 1))
sketch1.addConstraint(Sketcher.Constraint("Symmetric", 31, 3, 71, 3, -1, 1))
sketch1.addConstraint(Sketcher.Constraint("Symmetric", 35, 3, 75, 3, -1, 1))
sketch1.addConstraint(Sketcher.Constraint("Symmetric", 37, 3, 77, 3, -1, 1))
sketch1.addConstraint(Sketcher.Constraint("Symmetric", 38, 3, 78, 3, -1, 1))
sketch1.addConstraint(Sketcher.Constraint("Symmetric", 39, 3, 79, 3, -1, 1))
sketch1.addConstraint(Sketcher.Constraint("Symmetric", 25, 3, 31, 3, -2))
sketch1.addConstraint(Sketcher.Constraint("Symmetric", 21, 3, 35, 3, -2))
sketch1.addConstraint(Sketcher.Constraint("Symmetric", 19, 3, 37, 3, -2))
sketch1.addConstraint(Sketcher.Constraint("Symmetric", 18, 3, 38, 3, -2))
sketch1.addConstraint(Sketcher.Constraint("Symmetric", 17, 3, 39, 3, -2))
sketch1.addConstraint(Sketcher.Constraint("Symmetric", 15, 3, 41, 3, -2))
sketch1.addConstraint(Sketcher.Constraint("Symmetric", 13, 3, 43, 3, -2))
sketch1.addConstraint(Sketcher.Constraint("Symmetric", 10, 2, 45, 2, -2))
sketch1.addConstraint(Sketcher.Constraint("Symmetric", 6, 2, 49, 2, -2))
sketch1.addConstraint(Sketcher.Constraint("Symmetric", 66, 2, 69, 2, -2))
sketch1.addConstraint(Sketcher.Constraint("Perpendicular", 6, 10))
sketch1.addConstraint(Sketcher.Constraint("Parallel", 10, 26))
sketch1.addConstraint(Sketcher.Constraint("Perpendicular", 26, 30))
sketch1.addConstraint(Sketcher.Constraint("Horizontal", 19, 3, 21, 3))
sketch1.addConstraint(Sketcher.Constraint("Horizontal", 3, 3, 53, 3))
sketch1.addConstraint(Sketcher.Constraint("Horizontal", 37, 3, 19, 2))
sketch1.addConstraint(Sketcher.Constraint("Horizontal", 20, 2, 21, 2))
sketch1.addConstraint(Sketcher.Constraint("Horizontal", 34, 2, 35, 2))
sketch1.addConstraint(Sketcher.Constraint("Horizontal", 77, 3, 59, 2))
sketch1.addConstraint(Sketcher.Constraint("Horizontal", 74, 2, 75, 2))
sketch1.addConstraint(Sketcher.Constraint("Vertical", 15, 3, 17, 3))
sketch1.addConstraint(Sketcher.Constraint("Vertical", 33, 3, 63, 3))
sketch1.addConstraint(Sketcher.Constraint("Vertical", 23, 3, 73, 3))
sketch1.addConstraint(Sketcher.Constraint("Vertical", 79, 3, 0, 2))
sketch1.addConstraint(Sketcher.Constraint("Vertical", 0, 2, 1, 2))
sketch1.addConstraint(Sketcher.Constraint("Vertical", 14, 2, 15, 2))
sketch1.addConstraint(Sketcher.Constraint("Vertical", 57, 3, 39, 2))
sketch1.addConstraint(Sketcher.Constraint("Vertical", 54, 2, 55, 2))
sketch1.addConstraint(Sketcher.Constraint("Equal", 76, 0))
sketch1.addConstraint(Sketcher.Constraint("Equal", 74, 2))
sketch1.addConstraint(Sketcher.Constraint("Equal", 72, 4))
sketch1.addConstraint(Sketcher.Constraint("Equal", 68, 8))
sketch1.addConstraint(Sketcher.Constraint("Equal", 10, 26))
sketch1.addConstraint(Sketcher.Constraint("Radius", 1, Q("0.02 in")))
sketch1.addConstraint(Sketcher.Constraint("Radius", 5, Q("0.04 in")))
sketch1.addConstraint(Sketcher.Constraint("Diameter", 80, Q("0.205 in")))
sketch1.addConstraint(Sketcher.Constraint("Radius", 7, Q("0.125 in")))
sketch1.addConstraint(Sketcher.Constraint("Radius", 18, Q("0.083 in")))
sketch1.addConstraint(Sketcher.Constraint("DistanceX", 1, 3, -1, 1, Q("0.5 in")))
sketch1.addConstraint(Sketcher.Constraint("DistanceY", -1, 1, 19, 3, Q("0.5 in")))
sketch1.addConstraint(Sketcher.Constraint("Radius", 3, Q("0.0435 in")))
sketch1.addConstraint(Sketcher.Constraint("DistanceY", 3, 3, -1, 1, Q("0.171 in")))
sketch1.addConstraint(Sketcher.Constraint("DistanceX", 7, 3, -1, 1, Q("0.302 in")))
sketch1.addConstraint(Sketcher.Constraint("DistanceY", -1, 1, 17, 3, Q("0.396 in")))
sketch1.addConstraint(Sketcher.Constraint("DistanceX", 18, 3, -1, 1, Q("0.417 in")))
sketch1.addConstraint(Sketcher.Constraint("DistanceY", -1, 1, 18, 3, Q("0.417 in")))
sketch1.addConstraint(Sketcher.Constraint("DistanceX", 20, 1, 20, 2, 3.217316))
sketch1.addConstraint(Sketcher.Constraint("DistanceX", 24, 2, 24, 1, 2.131394))
pad1 = body.newObject("PartDesign::Pad", "Pad")
pad1.Profile = sketch1
pad1.Length = Q("16 in")

doc.recompute()
